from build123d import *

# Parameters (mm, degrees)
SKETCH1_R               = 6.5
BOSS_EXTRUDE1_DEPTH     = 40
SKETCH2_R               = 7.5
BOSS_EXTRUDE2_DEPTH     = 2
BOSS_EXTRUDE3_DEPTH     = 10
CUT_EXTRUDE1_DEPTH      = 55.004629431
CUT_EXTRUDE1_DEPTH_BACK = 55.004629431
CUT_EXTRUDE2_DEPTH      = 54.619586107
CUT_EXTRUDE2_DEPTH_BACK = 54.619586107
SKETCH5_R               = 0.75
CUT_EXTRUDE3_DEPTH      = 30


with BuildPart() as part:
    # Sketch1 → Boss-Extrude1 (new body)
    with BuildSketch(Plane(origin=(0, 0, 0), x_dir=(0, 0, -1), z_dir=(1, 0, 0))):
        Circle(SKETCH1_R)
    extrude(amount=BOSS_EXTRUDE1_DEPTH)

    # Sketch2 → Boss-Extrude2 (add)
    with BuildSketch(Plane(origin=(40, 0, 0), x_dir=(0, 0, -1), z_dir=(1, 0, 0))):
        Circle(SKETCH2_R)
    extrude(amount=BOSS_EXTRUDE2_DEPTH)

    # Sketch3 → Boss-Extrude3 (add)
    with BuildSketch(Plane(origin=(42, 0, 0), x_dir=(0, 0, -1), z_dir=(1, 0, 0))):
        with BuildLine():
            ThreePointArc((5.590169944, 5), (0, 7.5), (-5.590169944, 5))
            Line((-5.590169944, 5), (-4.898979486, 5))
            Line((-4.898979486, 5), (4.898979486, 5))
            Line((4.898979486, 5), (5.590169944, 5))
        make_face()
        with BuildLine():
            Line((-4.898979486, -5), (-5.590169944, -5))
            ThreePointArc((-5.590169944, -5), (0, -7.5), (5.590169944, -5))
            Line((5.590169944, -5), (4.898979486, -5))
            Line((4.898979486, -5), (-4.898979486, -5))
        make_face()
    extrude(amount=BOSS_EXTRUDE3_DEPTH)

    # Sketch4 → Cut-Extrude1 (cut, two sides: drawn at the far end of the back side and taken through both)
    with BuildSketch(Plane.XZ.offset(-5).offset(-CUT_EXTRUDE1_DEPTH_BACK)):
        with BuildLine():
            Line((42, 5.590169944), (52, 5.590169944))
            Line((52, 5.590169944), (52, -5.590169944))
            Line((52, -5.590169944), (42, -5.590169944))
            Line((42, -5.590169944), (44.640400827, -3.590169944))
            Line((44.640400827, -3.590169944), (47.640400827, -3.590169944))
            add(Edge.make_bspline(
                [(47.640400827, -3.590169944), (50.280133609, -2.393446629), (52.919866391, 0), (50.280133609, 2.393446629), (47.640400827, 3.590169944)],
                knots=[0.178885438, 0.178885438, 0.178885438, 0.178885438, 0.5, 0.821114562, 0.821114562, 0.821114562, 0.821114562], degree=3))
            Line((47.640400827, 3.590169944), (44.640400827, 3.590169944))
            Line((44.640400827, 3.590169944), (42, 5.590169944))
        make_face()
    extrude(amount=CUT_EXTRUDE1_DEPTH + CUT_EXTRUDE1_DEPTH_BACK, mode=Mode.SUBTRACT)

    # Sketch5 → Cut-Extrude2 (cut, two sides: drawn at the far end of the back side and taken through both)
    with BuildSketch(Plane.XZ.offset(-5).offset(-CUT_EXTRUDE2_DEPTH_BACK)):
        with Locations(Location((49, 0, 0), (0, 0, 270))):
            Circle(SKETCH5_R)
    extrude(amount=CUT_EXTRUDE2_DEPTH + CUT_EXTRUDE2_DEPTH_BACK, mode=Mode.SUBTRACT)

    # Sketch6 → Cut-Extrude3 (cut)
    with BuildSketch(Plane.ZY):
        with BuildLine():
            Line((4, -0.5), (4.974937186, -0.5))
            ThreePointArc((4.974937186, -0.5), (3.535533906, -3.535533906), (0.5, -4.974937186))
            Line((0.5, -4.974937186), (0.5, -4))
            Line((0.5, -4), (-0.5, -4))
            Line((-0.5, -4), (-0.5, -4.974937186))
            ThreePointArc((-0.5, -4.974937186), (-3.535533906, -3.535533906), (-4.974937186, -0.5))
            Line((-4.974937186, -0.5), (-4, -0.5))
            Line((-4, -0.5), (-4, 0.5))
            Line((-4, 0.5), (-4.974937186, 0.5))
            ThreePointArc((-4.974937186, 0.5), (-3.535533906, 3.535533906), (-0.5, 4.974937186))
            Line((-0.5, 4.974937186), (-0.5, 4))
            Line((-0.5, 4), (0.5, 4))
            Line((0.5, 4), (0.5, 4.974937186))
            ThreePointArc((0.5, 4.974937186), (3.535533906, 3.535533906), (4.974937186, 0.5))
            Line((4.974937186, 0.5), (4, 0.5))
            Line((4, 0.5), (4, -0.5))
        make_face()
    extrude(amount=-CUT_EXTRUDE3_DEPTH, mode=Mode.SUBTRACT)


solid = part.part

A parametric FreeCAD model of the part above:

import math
import FreeCAD as App
import Part
import Sketcher

doc = App.newDocument("Part")
body = doc.addObject("PartDesign::Body", "Body")

# Sketch on YZ plane
sketch1 = body.newObject("Sketcher::SketchObject", "Sketch")
sketch1.AttachmentSupport = (doc.getObject("YZ_Plane"), [""])
sketch1.MapMode = "FlatFace"
sketch1.addGeometry(Part.Circle(App.Vector(0, 0, 0), App.Vector(0, 0, 1), 6.5), False)
sketch1.addConstraint([
    Sketcher.Constraint("Coincident", 0, 3, -1, 1),
    Sketcher.Constraint("Diameter", 0, 13.0),
])
pad1 = body.newObject("PartDesign::Pad", "Pad")
pad1.Profile = sketch1
pad1.Length = 40

# Sketch on YZ plane
sketch2 = body.newObject("Sketcher::SketchObject", "Sketch001")
sketch2.AttachmentSupport = (doc.getObject("YZ_Plane"), [""])
sketch2.MapMode = "FlatFace"
sketch2.AttachmentOffset = App.Placement(App.Vector(0, 0, 40), App.Rotation())
sketch2.addGeometry(Part.Circle(App.Vector(0, 0, 0), App.Vector(0, 0, 1), 7.5), False)
sketch2.addConstraint([
    Sketcher.Constraint("Coincident", 0, 3, -1, 1),
    Sketcher.Constraint("Diameter", 0, 15.0),
])
pad2 = body.newObject("PartDesign::Pad", "Pad001")
pad2.Profile = sketch2
pad2.Length = 2

# Sketch on YZ plane
sketch3 = body.newObject("Sketcher::SketchObject", "Sketch002")
sketch3.AttachmentSupport = (doc.getObject("YZ_Plane"), [""])
sketch3.MapMode = "FlatFace"
sketch3.AttachmentOffset = App.Placement(App.Vector(0, 0, 42), App.Rotation())
sketch3.addGeometry([
    Part.ArcOfCircle(Part.Circle(App.Vector(0, 0, 0), App.Vector(0, 0, 1), 7.5), math.radians(-48.189685), math.radians(48.189685)),
    Part.LineSegment(App.Vector(5, 5.59017, 0), App.Vector(5, -5.59017, 0)),
    Part.ArcOfCircle(Part.Circle(App.Vector(0, 0, 0), App.Vector(0, 0, 1), 7.5), math.radians(131.810315), math.radians(228.189685)),
    Part.LineSegment(App.Vector(-5, -5.59017, 0), App.Vector(-5, 5.59017, 0)),
], False)
sketch3.addConstraint([
    Sketcher.Constraint("Coincident", 0, 1, 1, 2),
    Sketcher.Constraint("Coincident", 1, 1, 0, 2),
    Sketcher.Constraint("Coincident", 2, 1, 3, 2),
    Sketcher.Constraint("Coincident", 3, 1, 2, 2),
    Sketcher.Constraint("Vertical", 1),
    Sketcher.Constraint("Vertical", 3),
    Sketcher.Constraint("Coincident", 0, 3, -1, 1),
    Sketcher.Constraint("Coincident", 2, 3, -1, 1),
    Sketcher.Constraint("Equal", 0, 2),
    Sketcher.Constraint("Horizontal", 1, 1, 2, 1),
    Sketcher.Constraint("Radius", 0, 7.5),
    Sketcher.Constraint("DistanceX", -1, 1, 0, 1, 5.0),
])
pad3 = body.newObject("PartDesign::Pad", "Pad002")
pad3.Profile = sketch3
pad3.Length = 10

# Sketch on XZ plane
sketch4 = body.newObject("Sketcher::SketchObject", "Sketch003")
sketch4.AttachmentSupport = (doc.getObject("XZ_Plane"), [""])
sketch4.MapMode = "FlatFace"
sketch4.AttachmentOffset = App.Placement(App.Vector(0, 0, -5), App.Rotation())
sketch4.addGeometry([
    Part.LineSegment(App.Vector(52, 5.59017, 0), App.Vector(42, 5.59017, 0)),  # 0
    Part.LineSegment(App.Vector(42, 5.59017, 0), App.Vector(44.640401, 3.59017, 0)),  # 1
    Part.LineSegment(App.Vector(44.640401, 3.59017, 0), App.Vector(47.640401, 3.59017, 0)),  # 2
    Part.BSplineCurve([App.Vector(47.640401, -3.59017, 0), App.Vector(50.280134, -2.393447, 0), App.Vector(52.919866, 0, 0), App.Vector(50.280134, 2.393447, 0), App.Vector(47.640401, 3.59017, 0)], [4, 1, 4], [0.178885438, 0.5, 0.821114562], False, 3, [1, 1, 1, 1, 1], False),  # 3
    Part.LineSegment(App.Vector(47.640401, -3.59017, 0), App.Vector(44.640401, -3.59017, 0)),  # 4
    Part.LineSegment(App.Vector(44.640401, -3.59017, 0), App.Vector(42, -5.59017, 0)),  # 5
    Part.LineSegment(App.Vector(42, -5.59017, 0), App.Vector(52, -5.59017, 0)),  # 6
    Part.LineSegment(App.Vector(52, -5.59017, 0), App.Vector(52, 5.59017, 0)),  # 7
], False)
sketch4.addConstraint([
    Sketcher.Constraint("Block", 3),
    Sketcher.Constraint("Coincident", 0, 2, 1, 1),
    Sketcher.Constraint("Coincident", 1, 2, 2, 1),
    Sketcher.Constraint("Coincident", 2, 2, 3, 2),
    Sketcher.Constraint("Coincident", 3, 1, 4, 1),
    Sketcher.Constraint("Coincident", 4, 2, 5, 1),
    Sketcher.Constraint("Coincident", 5, 2, 6, 1),
    Sketcher.Constraint("Coincident", 6, 2, 7, 1),
    Sketcher.Constraint("Coincident", 7, 2, 0, 1),
    Sketcher.Constraint("Horizontal", 0),
    Sketcher.Constraint("Horizontal", 2),
    Sketcher.Constraint("Horizontal", 4),
    Sketcher.Constraint("Horizontal", 6),
    Sketcher.Constraint("Vertical", 7),
    Sketcher.Constraint("Symmetric", 0, 2, 5, 2, -1),
    Sketcher.Constraint("Vertical", 1, 2, 4, 2),
    Sketcher.Constraint("DistanceX", 0, 2, 0, 1, 10.0),
    Sketcher.Constraint("DistanceX", 2, 1, 2, 2, 3.0),
    Sketcher.Constraint("DistanceX", -1, 1, 0, 2, 42.0),
    Sketcher.Constraint("DistanceY", 1, 2, 0, 2, 2.0),
])
pocket1 = body.newObject("PartDesign::Pocket", "Pocket")
pocket1.Profile = sketch4
pocket1.Type = "ThroughAll"
pocket1.Midplane = True

# Sketch on XZ plane
sketch5 = body.newObject("Sketcher::SketchObject", "Sketch004")
sketch5.AttachmentSupport = (doc.getObject("XZ_Plane"), [""])
sketch5.MapMode = "FlatFace"
sketch5.AttachmentOffset = App.Placement(App.Vector(0, 0, -5), App.Rotation())
sketch5.addGeometry(Part.Circle(App.Vector(49, 0, 0), App.Vector(0, 0, 1), 0.75), False)
sketch5.addConstraint([
    Sketcher.Constraint("PointOnObject", 0, 3, -1),
    Sketcher.Constraint("Diameter", 0, 1.5),
    Sketcher.Constraint("DistanceX", -1, 1, 0, 3, 49.0),
])
pocket2 = body.newObject("PartDesign::Pocket", "Pocket001")
pocket2.Profile = sketch5
pocket2.Type = "ThroughAll"
pocket2.Midplane = True

# Sketch on YZ plane
sketch6 = body.newObject("Sketcher::SketchObject", "Sketch005")
sketch6.AttachmentSupport = (doc.getObject("YZ_Plane"), [""])
sketch6.MapMode = "FlatFace"
sketch6.addGeometry([
    Part.LineSegment(App.Vector(-0.5, 4.974937, 0), App.Vector(-0.5, 4, 0)),  # 0
    Part.LineSegment(App.Vector(-0.5, 4, 0), App.Vector(0.5, 4, 0)),  # 1
    Part.LineSegment(App.Vector(0.5, 4, 0), App.Vector(0.5, 4.974937, 0)),  # 2
    Part.ArcOfCircle(Part.Circle(App.Vector(0, 0, 0), App.Vector(0, 0, 1), 5), math.radians(5.73917), math.radians(84.26083)),  # 3
    Part.LineSegment(App.Vector(4.974937, 0.5, 0), App.Vector(4, 0.5, 0)),  # 4
    Part.LineSegment(App.Vector(4, 0.5, 0), App.Vector(4, -0.5, 0)),  # 5
    Part.LineSegment(App.Vector(4, -0.5, 0), App.Vector(4.974937, -0.5, 0)),  # 6
    Part.ArcOfCircle(Part.Circle(App.Vector(0, 0, 0), App.Vector(0, 0, 1), 5), math.radians(-84.26083), math.radians(-5.73917)),  # 7
    Part.LineSegment(App.Vector(0.5, -4.974937, 0), App.Vector(0.5, -4, 0)),  # 8
    Part.LineSegment(App.Vector(0.5, -4, 0), App.Vector(-0.5, -4, 0)),  # 9
    Part.LineSegment(App.Vector(-0.5, -4, 0), App.Vector(-0.5, -4.974937, 0)),  # 10
    Part.ArcOfCircle(Part.Circle(App.Vector(0, 0, 0), App.Vector(0, 0, 1), 5), math.radians(-174.26083), math.radians(-95.73917)),  # 11
    Part.LineSegment(App.Vector(-4.974937, -0.5, 0), App.Vector(-4, -0.5, 0)),  # 12
    Part.LineSegment(App.Vector(-4, -0.5, 0), App.Vector(-4, 0.5, 0)),  # 13
    Part.LineSegment(App.Vector(-4, 0.5, 0), App.Vector(-4.974937, 0.5, 0)),  # 14
    Part.ArcOfCircle(Part.Circle(App.Vector(0, 0, 0), App.Vector(0, 0, 1), 5), math.radians(95.73917), math.radians(174.26083)),  # 15
], False)
sketch6.addConstraint([
    Sketcher.Constraint("Coincident", 0, 2, 1, 1),
    Sketcher.Constraint("Coincident", 1, 2, 2, 1),
    Sketcher.Constraint("Coincident", 2, 2, 3, 2),
    Sketcher.Constraint("Coincident", 3, 1, 4, 1),
    Sketcher.Constraint("Coincident", 4, 2, 5, 1),
    Sketcher.Constraint("Coincident", 5, 2, 6, 1),
    Sketcher.Constraint("Coincident", 6, 2, 7, 2),
    Sketcher.Constraint("Coincident", 7, 1, 8, 1),
    Sketcher.Constraint("Coincident", 8, 2, 9, 1),
    Sketcher.Constraint("Coincident", 9, 2, 10, 1),
    Sketcher.Constraint("Coincident", 10, 2, 11, 2),
    Sketcher.Constraint("Coincident", 11, 1, 12, 1),
    Sketcher.Constraint("Coincident", 12, 2, 13, 1),
    Sketcher.Constraint("Coincident", 13, 2, 14, 1),
    Sketcher.Constraint("Coincident", 14, 2, 15, 2),
    Sketcher.Constraint("Coincident", 15, 1, 0, 1),
    Sketcher.Constraint("Vertical", 0),
    Sketcher.Constraint("Horizontal", 1),
    Sketcher.Constraint("Vertical", 2),
    Sketcher.Constraint("Horizontal", 4),
    Sketcher.Constraint("Vertical", 5),
    Sketcher.Constraint("Horizontal", 6),
    Sketcher.Constraint("Vertical", 8),
    Sketcher.Constraint("Horizontal", 9),
    Sketcher.Constraint("Vertical", 10),
    Sketcher.Constraint("Horizontal", 12),
    Sketcher.Constraint("Vertical", 13),
    Sketcher.Constraint("Horizontal", 14),
    Sketcher.Constraint("Coincident", 3, 3, -1, 1),
    Sketcher.Constraint("Coincident", 7, 3, -1, 1),
    Sketcher.Constraint("Coincident", 11, 3, -1, 1),
    Sketcher.Constraint("Coincident", 15, 3, -1, 1),
    Sketcher.Constraint("Equal", 3, 7),
    Sketcher.Constraint("Equal", 7, 11),
    Sketcher.Constraint("Equal", 11, 15),
    Sketcher.Constraint("Symmetric", 0, 2, 8, 2, -1, 1),
    Sketcher.Constraint("Symmetric", 4, 2, 12, 2, -1, 1),
    Sketcher.Constraint("Horizontal", 7, 1, 10, 2),
    Sketcher.Constraint("Horizontal", 6, 2, 11, 1),
    Sketcher.Constraint("Horizontal", 4, 2, 13, 2),
    Sketcher.Constraint("Horizontal", 2, 2, 15, 1),
    Sketcher.Constraint("Equal", 14, 0),
    Sketcher.Constraint("Equal", 9, 5),
    Sketcher.Constraint("Radius", 3, 5.0),
    Sketcher.Constraint("DistanceX", 1, 1, 1, 2, 1.0),
    Sketcher.Constraint("DistanceY", -1, 1, 0, 2, 4.0),
])
pocket3 = body.newObject("PartDesign::Pocket", "Pocket002")
pocket3.Profile = sketch6
pocket3.Length = 30
pocket3.Reversed = True

doc.recompute()
